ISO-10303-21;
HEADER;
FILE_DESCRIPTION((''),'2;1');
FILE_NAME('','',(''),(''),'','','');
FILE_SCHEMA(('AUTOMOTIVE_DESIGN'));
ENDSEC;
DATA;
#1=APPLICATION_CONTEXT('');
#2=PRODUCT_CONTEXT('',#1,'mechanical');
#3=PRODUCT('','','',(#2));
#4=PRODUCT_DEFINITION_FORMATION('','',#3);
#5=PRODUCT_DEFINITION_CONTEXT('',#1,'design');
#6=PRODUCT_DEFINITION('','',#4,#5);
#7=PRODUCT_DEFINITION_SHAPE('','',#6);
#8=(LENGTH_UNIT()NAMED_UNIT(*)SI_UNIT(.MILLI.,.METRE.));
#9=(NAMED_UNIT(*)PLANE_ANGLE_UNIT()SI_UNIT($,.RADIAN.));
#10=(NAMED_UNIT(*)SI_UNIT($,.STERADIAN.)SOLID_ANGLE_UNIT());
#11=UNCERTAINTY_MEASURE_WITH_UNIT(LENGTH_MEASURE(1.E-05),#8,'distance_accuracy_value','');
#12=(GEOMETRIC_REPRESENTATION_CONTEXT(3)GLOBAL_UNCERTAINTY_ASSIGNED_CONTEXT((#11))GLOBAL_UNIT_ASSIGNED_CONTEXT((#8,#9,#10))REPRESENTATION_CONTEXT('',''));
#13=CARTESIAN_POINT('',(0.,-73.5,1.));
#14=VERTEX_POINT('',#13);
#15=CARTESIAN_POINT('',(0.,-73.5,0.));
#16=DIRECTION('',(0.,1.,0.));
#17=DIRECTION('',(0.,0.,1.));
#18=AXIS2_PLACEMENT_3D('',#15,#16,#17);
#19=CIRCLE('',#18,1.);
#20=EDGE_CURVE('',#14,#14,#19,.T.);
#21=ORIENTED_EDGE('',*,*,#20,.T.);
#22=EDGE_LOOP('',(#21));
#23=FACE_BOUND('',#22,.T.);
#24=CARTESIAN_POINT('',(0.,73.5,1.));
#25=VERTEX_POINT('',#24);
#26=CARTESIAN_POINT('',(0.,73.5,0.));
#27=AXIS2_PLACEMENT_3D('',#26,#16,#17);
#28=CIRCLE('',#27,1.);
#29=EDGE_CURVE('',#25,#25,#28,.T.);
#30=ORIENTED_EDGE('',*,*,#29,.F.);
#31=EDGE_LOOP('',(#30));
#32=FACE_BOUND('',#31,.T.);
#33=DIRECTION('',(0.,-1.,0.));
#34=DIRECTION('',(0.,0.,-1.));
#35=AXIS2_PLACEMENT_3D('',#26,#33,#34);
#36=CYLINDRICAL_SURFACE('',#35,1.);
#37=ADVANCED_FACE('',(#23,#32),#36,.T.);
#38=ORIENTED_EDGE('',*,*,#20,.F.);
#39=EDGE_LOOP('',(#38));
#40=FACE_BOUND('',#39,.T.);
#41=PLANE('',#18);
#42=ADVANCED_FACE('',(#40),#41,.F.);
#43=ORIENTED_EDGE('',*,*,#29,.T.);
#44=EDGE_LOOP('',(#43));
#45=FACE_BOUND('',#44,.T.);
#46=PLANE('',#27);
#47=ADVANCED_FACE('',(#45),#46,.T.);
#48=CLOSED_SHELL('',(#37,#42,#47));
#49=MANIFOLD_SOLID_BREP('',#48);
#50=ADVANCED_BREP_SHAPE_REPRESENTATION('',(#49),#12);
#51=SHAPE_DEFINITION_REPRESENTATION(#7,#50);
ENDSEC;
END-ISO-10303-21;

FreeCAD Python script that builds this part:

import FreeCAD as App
import Part
import Sketcher

V = App.Vector
Q = App.Units.Quantity

doc = App.newDocument("Part")
body = doc.addObject("PartDesign::Body", "Body")

# Sketch on XZ plane
sketch1 = body.newObject("Sketcher::SketchObject", "Sketch")
sketch1.AttachmentSupport = (doc.getObject("XZ_Plane"), [""])
sketch1.MapMode = "FlatFace"
sketch1.addGeometry(Part.Circle(V(0, 0, 0), V(0, 0, 1), 1), False)
sketch1.addConstraint([
    Sketcher.Constraint("Coincident", 0, 3, -1, 1),
    Sketcher.Constraint("Diameter", 0, Q("2 mm")),
])
pad1 = body.newObject("PartDesign::Pad", "Pad")
pad1.Profile = sketch1
pad1.Length = 147
pad1.Midplane = True

doc.recompute()
